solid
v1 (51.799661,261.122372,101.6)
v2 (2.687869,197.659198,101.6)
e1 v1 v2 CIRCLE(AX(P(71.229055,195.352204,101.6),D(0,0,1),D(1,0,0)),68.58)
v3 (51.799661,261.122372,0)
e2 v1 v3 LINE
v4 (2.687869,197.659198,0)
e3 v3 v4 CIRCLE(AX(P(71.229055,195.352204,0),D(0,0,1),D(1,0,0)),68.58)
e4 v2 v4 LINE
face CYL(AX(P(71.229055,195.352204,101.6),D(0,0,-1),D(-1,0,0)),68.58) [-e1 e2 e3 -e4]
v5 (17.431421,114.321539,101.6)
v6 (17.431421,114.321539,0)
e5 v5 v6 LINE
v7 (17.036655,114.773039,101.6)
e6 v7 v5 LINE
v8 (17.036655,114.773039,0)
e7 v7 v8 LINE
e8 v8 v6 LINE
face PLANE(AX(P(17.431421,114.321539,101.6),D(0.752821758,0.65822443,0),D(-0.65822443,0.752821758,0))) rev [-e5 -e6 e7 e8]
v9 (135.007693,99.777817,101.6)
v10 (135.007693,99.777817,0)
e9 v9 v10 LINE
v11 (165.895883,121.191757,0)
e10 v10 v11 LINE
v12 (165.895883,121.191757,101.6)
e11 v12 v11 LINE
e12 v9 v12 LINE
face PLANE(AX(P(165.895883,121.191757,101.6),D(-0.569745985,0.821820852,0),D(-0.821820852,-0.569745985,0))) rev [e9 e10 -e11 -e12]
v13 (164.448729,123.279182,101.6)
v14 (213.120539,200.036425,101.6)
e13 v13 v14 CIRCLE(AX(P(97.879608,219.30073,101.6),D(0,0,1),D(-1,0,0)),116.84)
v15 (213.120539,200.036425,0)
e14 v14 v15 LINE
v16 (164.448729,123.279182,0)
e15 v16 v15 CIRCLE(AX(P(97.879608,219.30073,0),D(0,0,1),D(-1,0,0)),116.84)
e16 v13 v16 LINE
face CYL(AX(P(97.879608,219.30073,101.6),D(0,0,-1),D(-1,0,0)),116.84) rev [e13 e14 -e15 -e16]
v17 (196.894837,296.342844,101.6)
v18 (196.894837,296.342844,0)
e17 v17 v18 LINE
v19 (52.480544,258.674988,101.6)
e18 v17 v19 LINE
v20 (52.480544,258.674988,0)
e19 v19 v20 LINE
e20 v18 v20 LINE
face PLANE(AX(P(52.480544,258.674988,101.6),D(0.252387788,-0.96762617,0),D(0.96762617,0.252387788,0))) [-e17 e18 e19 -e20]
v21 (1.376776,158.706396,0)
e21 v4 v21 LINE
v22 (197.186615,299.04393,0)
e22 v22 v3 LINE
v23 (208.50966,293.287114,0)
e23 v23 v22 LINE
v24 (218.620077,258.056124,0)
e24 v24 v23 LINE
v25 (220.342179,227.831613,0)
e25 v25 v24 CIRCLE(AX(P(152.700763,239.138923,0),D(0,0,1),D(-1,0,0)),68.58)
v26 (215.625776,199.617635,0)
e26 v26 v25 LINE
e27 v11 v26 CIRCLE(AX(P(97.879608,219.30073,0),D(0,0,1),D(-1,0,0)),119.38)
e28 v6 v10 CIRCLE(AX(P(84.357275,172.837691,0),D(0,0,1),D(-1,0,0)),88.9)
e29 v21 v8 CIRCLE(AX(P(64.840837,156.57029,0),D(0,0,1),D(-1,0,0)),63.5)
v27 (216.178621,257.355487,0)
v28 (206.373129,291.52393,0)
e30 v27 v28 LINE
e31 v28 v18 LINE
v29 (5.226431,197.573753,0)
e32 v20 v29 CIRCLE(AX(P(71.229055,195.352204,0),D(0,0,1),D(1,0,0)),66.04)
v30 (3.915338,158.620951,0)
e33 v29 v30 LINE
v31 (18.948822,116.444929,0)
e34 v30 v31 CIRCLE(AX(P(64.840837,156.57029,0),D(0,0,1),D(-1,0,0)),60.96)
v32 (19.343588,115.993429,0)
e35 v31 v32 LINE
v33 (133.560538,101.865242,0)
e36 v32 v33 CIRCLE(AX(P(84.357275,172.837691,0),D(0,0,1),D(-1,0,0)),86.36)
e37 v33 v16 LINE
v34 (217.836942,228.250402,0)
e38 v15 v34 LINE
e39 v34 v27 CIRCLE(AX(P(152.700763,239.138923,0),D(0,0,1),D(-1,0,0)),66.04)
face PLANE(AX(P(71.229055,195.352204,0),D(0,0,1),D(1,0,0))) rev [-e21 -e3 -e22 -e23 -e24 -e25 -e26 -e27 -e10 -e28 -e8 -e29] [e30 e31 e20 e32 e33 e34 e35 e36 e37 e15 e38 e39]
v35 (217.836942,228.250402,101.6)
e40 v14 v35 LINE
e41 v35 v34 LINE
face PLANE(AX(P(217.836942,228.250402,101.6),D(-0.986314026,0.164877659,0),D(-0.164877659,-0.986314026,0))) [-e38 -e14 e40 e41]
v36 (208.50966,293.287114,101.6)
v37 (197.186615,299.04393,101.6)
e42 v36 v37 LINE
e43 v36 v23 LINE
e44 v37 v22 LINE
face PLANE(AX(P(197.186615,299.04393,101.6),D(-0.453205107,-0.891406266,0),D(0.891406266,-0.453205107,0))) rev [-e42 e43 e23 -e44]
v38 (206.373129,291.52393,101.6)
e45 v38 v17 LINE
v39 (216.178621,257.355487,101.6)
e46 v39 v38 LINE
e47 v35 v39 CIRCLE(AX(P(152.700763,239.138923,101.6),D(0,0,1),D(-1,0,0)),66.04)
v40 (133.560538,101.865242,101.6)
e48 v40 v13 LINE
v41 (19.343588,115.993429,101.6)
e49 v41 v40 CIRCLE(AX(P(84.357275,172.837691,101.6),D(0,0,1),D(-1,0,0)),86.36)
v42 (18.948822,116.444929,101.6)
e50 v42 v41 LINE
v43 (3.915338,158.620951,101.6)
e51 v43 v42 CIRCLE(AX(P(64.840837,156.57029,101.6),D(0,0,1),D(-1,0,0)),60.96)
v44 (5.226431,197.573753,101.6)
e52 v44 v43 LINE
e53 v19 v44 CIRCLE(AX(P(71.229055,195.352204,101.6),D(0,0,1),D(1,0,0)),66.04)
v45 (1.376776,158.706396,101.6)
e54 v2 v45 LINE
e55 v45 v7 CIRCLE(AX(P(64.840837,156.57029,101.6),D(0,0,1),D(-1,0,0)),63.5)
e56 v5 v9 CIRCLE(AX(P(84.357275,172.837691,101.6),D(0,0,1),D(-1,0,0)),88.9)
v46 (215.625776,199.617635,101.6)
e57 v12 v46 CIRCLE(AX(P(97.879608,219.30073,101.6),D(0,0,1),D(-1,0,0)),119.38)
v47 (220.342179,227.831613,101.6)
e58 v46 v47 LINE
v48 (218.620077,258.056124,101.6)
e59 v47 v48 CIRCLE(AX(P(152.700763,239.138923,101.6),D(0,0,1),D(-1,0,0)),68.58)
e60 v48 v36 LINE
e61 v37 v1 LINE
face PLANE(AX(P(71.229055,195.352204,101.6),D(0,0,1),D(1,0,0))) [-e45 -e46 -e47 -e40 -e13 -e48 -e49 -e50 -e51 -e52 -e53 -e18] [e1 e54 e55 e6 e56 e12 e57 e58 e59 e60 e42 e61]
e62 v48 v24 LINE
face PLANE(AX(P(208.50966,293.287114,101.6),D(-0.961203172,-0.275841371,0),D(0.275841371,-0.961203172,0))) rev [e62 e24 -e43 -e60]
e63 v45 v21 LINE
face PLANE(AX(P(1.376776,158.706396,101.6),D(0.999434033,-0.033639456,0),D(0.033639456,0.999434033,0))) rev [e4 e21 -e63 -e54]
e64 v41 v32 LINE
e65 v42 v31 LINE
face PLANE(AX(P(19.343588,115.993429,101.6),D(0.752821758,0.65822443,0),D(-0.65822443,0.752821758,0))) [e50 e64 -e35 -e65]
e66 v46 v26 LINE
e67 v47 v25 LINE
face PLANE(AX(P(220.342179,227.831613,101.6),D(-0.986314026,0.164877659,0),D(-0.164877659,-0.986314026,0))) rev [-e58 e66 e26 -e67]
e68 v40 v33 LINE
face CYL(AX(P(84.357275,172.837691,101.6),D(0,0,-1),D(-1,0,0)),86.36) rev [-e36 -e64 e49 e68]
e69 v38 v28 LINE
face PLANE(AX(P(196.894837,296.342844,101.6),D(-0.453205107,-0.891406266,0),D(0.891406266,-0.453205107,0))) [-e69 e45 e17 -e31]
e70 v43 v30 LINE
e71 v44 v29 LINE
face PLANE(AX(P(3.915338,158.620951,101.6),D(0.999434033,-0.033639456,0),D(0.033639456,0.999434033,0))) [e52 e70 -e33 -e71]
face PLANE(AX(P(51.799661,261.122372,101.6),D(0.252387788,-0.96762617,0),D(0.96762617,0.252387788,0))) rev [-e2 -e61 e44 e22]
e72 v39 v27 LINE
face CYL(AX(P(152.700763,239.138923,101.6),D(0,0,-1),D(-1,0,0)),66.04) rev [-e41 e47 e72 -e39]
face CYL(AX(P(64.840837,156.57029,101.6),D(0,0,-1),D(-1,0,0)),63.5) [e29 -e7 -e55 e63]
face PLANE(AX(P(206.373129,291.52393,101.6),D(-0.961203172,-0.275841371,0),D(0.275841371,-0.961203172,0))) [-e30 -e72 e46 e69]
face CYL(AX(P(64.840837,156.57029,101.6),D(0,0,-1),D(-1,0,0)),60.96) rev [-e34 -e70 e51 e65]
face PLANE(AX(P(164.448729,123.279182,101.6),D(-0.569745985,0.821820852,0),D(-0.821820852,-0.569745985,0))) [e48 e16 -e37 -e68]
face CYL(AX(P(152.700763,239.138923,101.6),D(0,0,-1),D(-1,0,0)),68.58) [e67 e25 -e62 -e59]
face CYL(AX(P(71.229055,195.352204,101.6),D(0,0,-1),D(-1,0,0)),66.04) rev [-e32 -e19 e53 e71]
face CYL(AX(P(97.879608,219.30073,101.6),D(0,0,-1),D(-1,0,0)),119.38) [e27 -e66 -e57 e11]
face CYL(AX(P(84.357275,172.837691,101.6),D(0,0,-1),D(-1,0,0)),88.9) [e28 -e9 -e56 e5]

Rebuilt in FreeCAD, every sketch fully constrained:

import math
import FreeCAD as App
import Part
import Sketcher

V = App.Vector
Q = App.Units.Quantity

doc = App.newDocument("Part")
params = doc.addObject("Spreadsheet::Sheet", "Params")
for row, (alias, value) in enumerate([
    ("sketch1_radius", "2.7 in"),
    ("sketch1_radius2", "2.5 in"),
    ("sketch1_radius3", "3.5 in"),
    ("sketch1_radius4", "4.7 in"),
    ("sketch1_radius5", "2.6 in"),
    ("pad1_length", "4 in"),
], start=1):
    params.set(f"A{row}", alias)
    params.set(f"B{row}", "=" + value)
    params.setAlias(f"B{row}", alias)

body = doc.addObject("PartDesign::Body", "Body")

sketch1 = body.newObject("Sketcher::SketchObject", "Sketch")
sketch1.AttachmentSupport = (doc.getObject("XY_Plane"), [""])
sketch1.MapMode = "FlatFace"
sketch1.addGeometry([
    Part.LineSegment(V(197.2, 299, 0), V(51.8, 261.1, 0)),
    Part.ArcOfCircle(Part.Circle(V(71.2, 195.4, 0), V(0, 0, 1), 68.6), math.radians(106), math.radians(178)),
    Part.LineSegment(V(2.7, 197.7, 0), V(1.4, 158.7, 0)),
    Part.ArcOfCircle(Part.Circle(V(64.8, 156.6, 0), V(0, 0, 1), 63.5), math.radians(178), math.radians(221)),
    Part.LineSegment(V(17, 114.8, 0), V(17.4, 114.3, 0)),
    Part.ArcOfCircle(Part.Circle(V(84.4, 172.8, 0), V(0, 0, 1), 88.9), math.radians(-139), math.radians(-55)),
    Part.LineSegment(V(135, 99.8, 0), V(165.9, 121.2, 0)),
    Part.ArcOfCircle(Part.Circle(V(97.9, 219.3, 0), V(0, 0, 1), 119.4), math.radians(-55), math.radians(-9)),
    Part.LineSegment(V(215.6, 199.6, 0), V(220.3, 227.8, 0)),
    Part.ArcOfCircle(Part.Circle(V(152.7, 239.1, 0), V(0, 0, 1), 68.6), math.radians(-9), math.radians(16)),
    Part.LineSegment(V(218.6, 258.1, 0), V(208.5, 293.3, 0)),
    Part.LineSegment(V(208.5, 293.3, 0), V(197.2, 299, 0)),
    Part.LineSegment(V(52.5, 258.7, 0), V(196.9, 296.3, 0)),
    Part.LineSegment(V(196.9, 296.3, 0), V(206.4, 291.5, 0)),
    Part.LineSegment(V(206.4, 291.5, 0), V(216.2, 257.4, 0)),
    Part.ArcOfCircle(Part.Circle(V(152.7, 239.1, 0), V(0, 0, 1), 66), math.radians(-9), math.radians(16)),
    Part.LineSegment(V(217.8, 228.3, 0), V(213.1, 200, 0)),
    Part.ArcOfCircle(Part.Circle(V(97.9, 219.3, 0), V(0, 0, 1), 116.8), math.radians(-55), math.radians(-9)),
    Part.LineSegment(V(164.4, 123.3, 0), V(133.6, 101.9, 0)),
    Part.ArcOfCircle(Part.Circle(V(84.4, 172.8, 0), V(0, 0, 1), 86.4), math.radians(-139), math.radians(-55)),
    Part.LineSegment(V(19.3, 116, 0), V(18.9, 116.4, 0)),
    Part.ArcOfCircle(Part.Circle(V(64.8, 156.6, 0), V(0, 0, 1), 61), math.radians(178), math.radians(221)),
    Part.LineSegment(V(3.9, 158.6, 0), V(5.2, 197.6, 0)),
    Part.ArcOfCircle(Part.Circle(V(71.2, 195.4, 0), V(0, 0, 1), 66), math.radians(106), math.radians(178)),
], False)
sketch1.addConstraint([
    Sketcher.Constraint("Coincident", 0, 2, 1, 1),
    Sketcher.Constraint("Tangent", 1, 2, 2, 1),
    Sketcher.Constraint("Tangent", 2, 2, 3, 1),
    Sketcher.Constraint("Tangent", 3, 2, 4, 1),
    Sketcher.Constraint("Tangent", 4, 2, 5, 1),
    Sketcher.Constraint("Tangent", 5, 2, 6, 1),
    Sketcher.Constraint("Tangent", 6, 2, 7, 1),
    Sketcher.Constraint("Tangent", 7, 2, 8, 1),
    Sketcher.Constraint("Tangent", 8, 2, 9, 1),
    Sketcher.Constraint("Tangent", 9, 2, 10, 1),
    Sketcher.Constraint("Coincident", 10, 2, 11, 1),
    Sketcher.Constraint("Coincident", 11, 2, 0, 1),
    Sketcher.Constraint("Coincident", 12, 2, 13, 1),
    Sketcher.Constraint("Coincident", 13, 2, 14, 1),
    Sketcher.Constraint("Tangent", 14, 2, 15, 2),
    Sketcher.Constraint("Tangent", 15, 1, 16, 1),
    Sketcher.Constraint("Tangent", 16, 2, 17, 2),
    Sketcher.Constraint("Tangent", 17, 1, 18, 1),
    Sketcher.Constraint("Tangent", 18, 2, 19, 2),
    Sketcher.Constraint("Tangent", 19, 1, 20, 1),
    Sketcher.Constraint("Tangent", 20, 2, 21, 2),
    Sketcher.Constraint("Tangent", 21, 1, 22, 1),
    Sketcher.Constraint("Tangent", 22, 2, 23, 2),
    Sketcher.Constraint("Coincident", 23, 1, 12, 1),
    Sketcher.Constraint("Coincident", 15, 3, 9, 3),
    Sketcher.Constraint("Coincident", 17, 3, 7, 3),
    Sketcher.Constraint("Coincident", 19, 3, 5, 3),
    Sketcher.Constraint("Coincident", 21, 3, 3, 3),
    Sketcher.Constraint("Coincident", 23, 3, 1, 3),
    Sketcher.Constraint("Equal", 1, 9),
    Sketcher.Constraint("Equal", 15, 23),
    Sketcher.Constraint("Parallel", 0, 12),
    Sketcher.Constraint("Parallel", 11, 13),
    Sketcher.Constraint("Parallel", 10, 14),
    Sketcher.Constraint("Parallel", 8, 16),
    Sketcher.Constraint("Parallel", 6, 18),
    Sketcher.Constraint("Parallel", 4, 20),
    Sketcher.Constraint("Radius", 1, Q("2.7 in")),
    Sketcher.Constraint("Radius", 3, Q("2.5 in")),
    Sketcher.Constraint("Radius", 5, Q("3.5 in")),
    Sketcher.Constraint("Radius", 7, Q("4.7 in")),
    Sketcher.Constraint("Radius", 15, Q("2.6 in")),
    Sketcher.Constraint("Distance", 0, Q("5.9154 in")),
    Sketcher.Constraint("DistanceY", 3, 3, 5, 3, 16.267401),
    Sketcher.Constraint("DistanceY", 4, 2, 3, 2, 0.4515),
    Sketcher.Constraint("DistanceX", 7, 2, 9, 2, 2.994301),
    Sketcher.Constraint("DistanceY", 15, 3, 9, 2, 18.917201),
    Sketcher.Constraint("DistanceY", 8, 2, 10, 2, 65.455501),
    Sketcher.Constraint("DistanceY", 13, 2, 11, 2, 7.52),
    Sketcher.Constraint("DistanceY", 16, 2, 9, 2, 58.019699),
    Sketcher.Constraint("Distance", 2, 38.974861),
    Sketcher.Constraint("Distance", 11, 12.702452),
    Sketcher.Constraint("DistanceY", -1, 1, 3, 3, 156.57029),
    Sketcher.Constraint("DistanceY", -1, 1, 7, 3, 219.30073),
    Sketcher.Constraint("DistanceX", -1, 1, 0, 2, 51.799661),
    Sketcher.Constraint("DistanceX", -1, 1, 1, 2, 2.687869),
    Sketcher.Constraint("DistanceX", -1, 1, 4, 2, 17.431421),
    Sketcher.Constraint("DistanceX", -1, 1, 8, 2, 220.342179),
    Sketcher.Constraint("DistanceX", 12, 2, 11, 2, 0.291778),
])
sketch1.setExpression("Constraints[37]", "Params.sketch1_radius")
sketch1.setExpression("Constraints[38]", "Params.sketch1_radius2")
sketch1.setExpression("Constraints[39]", "Params.sketch1_radius3")
sketch1.setExpression("Constraints[40]", "Params.sketch1_radius4")
sketch1.setExpression("Constraints[41]", "Params.sketch1_radius5")
pad1 = body.newObject("PartDesign::Pad", "Pad")
pad1.Profile = sketch1
pad1.setExpression("Length", "Params.pad1_length")

doc.recompute()
